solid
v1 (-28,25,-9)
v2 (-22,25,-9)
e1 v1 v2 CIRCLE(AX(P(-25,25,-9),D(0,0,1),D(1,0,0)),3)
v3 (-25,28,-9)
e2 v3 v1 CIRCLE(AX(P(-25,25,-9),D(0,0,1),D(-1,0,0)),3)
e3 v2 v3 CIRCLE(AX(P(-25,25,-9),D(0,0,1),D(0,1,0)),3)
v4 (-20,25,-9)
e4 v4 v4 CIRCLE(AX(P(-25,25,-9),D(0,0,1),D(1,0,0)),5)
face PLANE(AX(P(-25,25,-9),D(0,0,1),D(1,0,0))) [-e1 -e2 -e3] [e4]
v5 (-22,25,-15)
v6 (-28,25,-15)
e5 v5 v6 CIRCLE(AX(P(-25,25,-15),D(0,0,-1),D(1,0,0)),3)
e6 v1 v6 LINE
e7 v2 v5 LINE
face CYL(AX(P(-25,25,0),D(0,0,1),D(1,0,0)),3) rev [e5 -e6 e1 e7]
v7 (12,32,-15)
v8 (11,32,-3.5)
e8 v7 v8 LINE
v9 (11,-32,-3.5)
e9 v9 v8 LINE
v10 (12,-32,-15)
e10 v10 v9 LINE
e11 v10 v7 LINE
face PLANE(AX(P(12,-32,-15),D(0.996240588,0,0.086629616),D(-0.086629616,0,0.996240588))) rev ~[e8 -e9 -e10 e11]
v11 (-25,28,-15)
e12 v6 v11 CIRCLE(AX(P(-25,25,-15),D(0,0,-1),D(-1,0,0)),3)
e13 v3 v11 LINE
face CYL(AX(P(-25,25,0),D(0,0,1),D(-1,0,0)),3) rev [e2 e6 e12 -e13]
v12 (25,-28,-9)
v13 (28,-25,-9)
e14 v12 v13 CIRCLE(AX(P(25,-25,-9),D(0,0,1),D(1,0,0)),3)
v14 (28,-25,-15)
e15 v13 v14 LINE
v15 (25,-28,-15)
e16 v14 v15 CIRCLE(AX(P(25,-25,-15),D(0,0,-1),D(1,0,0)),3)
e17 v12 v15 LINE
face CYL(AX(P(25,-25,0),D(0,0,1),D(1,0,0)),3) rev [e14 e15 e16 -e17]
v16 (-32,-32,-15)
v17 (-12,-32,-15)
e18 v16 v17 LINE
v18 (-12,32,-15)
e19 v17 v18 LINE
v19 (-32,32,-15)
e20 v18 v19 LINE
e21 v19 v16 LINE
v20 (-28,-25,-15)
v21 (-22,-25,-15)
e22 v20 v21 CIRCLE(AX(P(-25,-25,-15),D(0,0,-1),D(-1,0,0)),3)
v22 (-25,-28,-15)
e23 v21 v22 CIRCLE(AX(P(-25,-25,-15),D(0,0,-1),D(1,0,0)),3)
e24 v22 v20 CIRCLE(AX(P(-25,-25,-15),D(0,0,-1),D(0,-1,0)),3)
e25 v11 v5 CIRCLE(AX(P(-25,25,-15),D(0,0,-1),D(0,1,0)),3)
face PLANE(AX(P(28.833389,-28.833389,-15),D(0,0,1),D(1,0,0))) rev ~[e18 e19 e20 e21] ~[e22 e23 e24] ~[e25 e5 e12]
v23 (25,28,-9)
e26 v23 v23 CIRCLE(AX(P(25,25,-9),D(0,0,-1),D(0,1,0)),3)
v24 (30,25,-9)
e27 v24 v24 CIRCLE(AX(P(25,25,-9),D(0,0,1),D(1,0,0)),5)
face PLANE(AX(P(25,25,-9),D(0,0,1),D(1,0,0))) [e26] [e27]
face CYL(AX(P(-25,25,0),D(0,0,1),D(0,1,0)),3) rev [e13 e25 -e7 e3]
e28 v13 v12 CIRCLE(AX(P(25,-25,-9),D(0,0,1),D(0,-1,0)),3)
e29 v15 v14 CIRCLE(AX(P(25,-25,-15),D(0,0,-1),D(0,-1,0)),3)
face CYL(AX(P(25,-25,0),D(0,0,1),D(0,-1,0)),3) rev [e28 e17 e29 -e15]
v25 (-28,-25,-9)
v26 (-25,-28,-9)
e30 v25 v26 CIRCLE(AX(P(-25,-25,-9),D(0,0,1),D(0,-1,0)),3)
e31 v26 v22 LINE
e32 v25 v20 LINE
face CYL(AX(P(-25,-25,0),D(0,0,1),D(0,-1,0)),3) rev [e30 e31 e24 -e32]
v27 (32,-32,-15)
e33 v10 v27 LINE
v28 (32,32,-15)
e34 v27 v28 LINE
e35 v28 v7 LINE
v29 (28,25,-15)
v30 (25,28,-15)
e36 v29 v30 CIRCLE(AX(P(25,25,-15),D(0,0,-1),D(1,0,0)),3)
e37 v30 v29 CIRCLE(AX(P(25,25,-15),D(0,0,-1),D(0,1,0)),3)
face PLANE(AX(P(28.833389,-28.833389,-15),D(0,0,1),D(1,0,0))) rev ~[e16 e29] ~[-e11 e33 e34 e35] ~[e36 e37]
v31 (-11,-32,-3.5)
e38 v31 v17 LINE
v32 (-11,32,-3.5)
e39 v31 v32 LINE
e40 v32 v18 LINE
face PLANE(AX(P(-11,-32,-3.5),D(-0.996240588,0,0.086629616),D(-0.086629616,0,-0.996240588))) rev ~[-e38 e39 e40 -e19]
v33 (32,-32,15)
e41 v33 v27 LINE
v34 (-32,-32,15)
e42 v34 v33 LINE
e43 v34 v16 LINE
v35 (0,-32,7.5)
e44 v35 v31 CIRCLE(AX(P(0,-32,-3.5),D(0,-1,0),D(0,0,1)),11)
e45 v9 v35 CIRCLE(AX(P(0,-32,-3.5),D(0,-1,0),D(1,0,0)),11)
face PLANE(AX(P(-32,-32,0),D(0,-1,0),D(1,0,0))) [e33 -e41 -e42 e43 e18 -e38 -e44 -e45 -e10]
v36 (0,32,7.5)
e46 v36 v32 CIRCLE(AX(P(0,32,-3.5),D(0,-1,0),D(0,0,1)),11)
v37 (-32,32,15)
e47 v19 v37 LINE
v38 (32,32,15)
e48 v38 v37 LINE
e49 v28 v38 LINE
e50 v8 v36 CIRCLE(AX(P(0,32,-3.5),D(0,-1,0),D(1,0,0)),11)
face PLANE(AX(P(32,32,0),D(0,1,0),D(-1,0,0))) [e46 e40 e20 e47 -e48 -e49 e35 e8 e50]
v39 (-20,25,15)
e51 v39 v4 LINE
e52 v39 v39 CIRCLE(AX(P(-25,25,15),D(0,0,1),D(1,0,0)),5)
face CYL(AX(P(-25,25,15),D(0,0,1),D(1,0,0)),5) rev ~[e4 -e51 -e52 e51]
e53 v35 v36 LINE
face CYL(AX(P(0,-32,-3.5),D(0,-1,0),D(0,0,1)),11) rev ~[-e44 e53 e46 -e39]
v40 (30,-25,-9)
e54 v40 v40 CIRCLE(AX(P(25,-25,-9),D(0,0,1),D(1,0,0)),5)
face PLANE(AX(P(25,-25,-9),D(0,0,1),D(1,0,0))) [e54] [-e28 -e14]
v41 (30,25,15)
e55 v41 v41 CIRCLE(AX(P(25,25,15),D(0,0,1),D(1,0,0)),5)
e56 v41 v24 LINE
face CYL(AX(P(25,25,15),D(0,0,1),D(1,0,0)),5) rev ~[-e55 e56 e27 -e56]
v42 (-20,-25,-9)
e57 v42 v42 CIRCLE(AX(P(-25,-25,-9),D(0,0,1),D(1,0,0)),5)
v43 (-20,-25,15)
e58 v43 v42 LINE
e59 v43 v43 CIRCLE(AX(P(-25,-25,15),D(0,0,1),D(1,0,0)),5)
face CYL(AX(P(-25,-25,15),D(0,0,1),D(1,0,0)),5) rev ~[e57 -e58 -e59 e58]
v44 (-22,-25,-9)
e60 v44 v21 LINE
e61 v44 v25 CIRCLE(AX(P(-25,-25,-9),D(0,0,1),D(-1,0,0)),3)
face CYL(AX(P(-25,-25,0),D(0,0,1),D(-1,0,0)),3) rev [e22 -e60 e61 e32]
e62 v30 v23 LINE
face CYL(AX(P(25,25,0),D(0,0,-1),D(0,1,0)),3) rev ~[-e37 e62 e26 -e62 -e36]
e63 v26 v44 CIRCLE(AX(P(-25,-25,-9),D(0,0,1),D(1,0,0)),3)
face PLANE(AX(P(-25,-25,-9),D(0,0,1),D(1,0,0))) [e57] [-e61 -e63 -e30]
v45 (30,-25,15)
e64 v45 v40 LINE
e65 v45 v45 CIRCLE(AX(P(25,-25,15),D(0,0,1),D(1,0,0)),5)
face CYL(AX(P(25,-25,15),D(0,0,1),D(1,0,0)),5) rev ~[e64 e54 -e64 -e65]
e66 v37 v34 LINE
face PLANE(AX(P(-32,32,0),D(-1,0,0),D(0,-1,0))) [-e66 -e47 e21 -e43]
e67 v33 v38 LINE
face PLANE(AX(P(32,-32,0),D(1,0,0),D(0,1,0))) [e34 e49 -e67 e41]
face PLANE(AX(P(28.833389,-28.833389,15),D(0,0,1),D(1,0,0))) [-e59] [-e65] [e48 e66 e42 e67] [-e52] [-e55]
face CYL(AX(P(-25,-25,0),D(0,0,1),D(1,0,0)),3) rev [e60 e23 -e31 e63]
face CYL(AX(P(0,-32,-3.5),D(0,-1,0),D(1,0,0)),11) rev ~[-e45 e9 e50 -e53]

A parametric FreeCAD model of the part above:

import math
import FreeCAD as App
import Part
import Sketcher
from FreeCAD import Vector

doc = App.newDocument("Part")
params = doc.addObject("Spreadsheet::Sheet", "Params")
for row, (alias, value) in enumerate([
    ("sketch1_radius", "3 mm"),
    ("sketch1_width", "64 mm"),
    ("pad1_length", "30 mm"),
    ("sketch2_radius", "11 mm"),
    ("sketch2_width", "24 mm"),
    ("pocket1_length", "64 mm"),
    ("sketch3_diameter", "10 mm"),
    ("pocket2_length", "24 mm"),
], start=1):
    params.set(f"A{row}", alias)
    params.set(f"B{row}", "=" + value)
    params.setAlias(f"B{row}", alias)

body = doc.addObject("PartDesign::Body", "Body")

sketch1 = doc.addObject("Sketcher::SketchObject", "Sketch")
body.addObject(sketch1)
sketch1.AttachmentSupport = (doc.XY_Plane, [""])
sketch1.MapMode = "FlatFace"
sketch1.addGeometry([
    Part.LineSegment(Vector(32, -32, 0), Vector(32, 32, 0)),
    Part.LineSegment(Vector(32, 32, 0), Vector(-32, 32, 0)),
    Part.LineSegment(Vector(-32, 32, 0), Vector(-32, -32, 0)),
    Part.LineSegment(Vector(-32, -32, 0), Vector(32, -32, 0)),
    Part.ArcOfCircle(Part.Circle(Vector(25, -25, 0), Vector(0, 0, 1), 3), math.radians(-90), math.radians(0)),
    Part.ArcOfCircle(Part.Circle(Vector(25, -25, 0), Vector(0, 0, 1), 3), math.radians(0), math.radians(270)),
    Part.ArcOfCircle(Part.Circle(Vector(-25, -25, 0), Vector(0, 0, 1), 3), math.radians(-90), math.radians(0)),
    Part.ArcOfCircle(Part.Circle(Vector(-25, -25, 0), Vector(0, 0, 1), 3), math.radians(180), math.radians(270)),
    Part.ArcOfCircle(Part.Circle(Vector(-25, -25, 0), Vector(0, 0, 1), 3), math.radians(0), math.radians(180)),
    Part.ArcOfCircle(Part.Circle(Vector(-25, 25, 0), Vector(0, 0, 1), 3), math.radians(180), math.radians(360)),
    Part.ArcOfCircle(Part.Circle(Vector(-25, 25, 0), Vector(0, 0, 1), 3), math.radians(90), math.radians(180)),
    Part.ArcOfCircle(Part.Circle(Vector(-25, 25, 0), Vector(0, 0, 1), 3), math.radians(0), math.radians(90)),
    Part.ArcOfCircle(Part.Circle(Vector(25, 25, 0), Vector(0, 0, 1), 3), math.radians(90), math.radians(360)),
    Part.ArcOfCircle(Part.Circle(Vector(25, 25, 0), Vector(0, 0, 1), 3), math.radians(0), math.radians(90)),
], False)
sketch1.addConstraint([
    Sketcher.Constraint("Coincident", 0, 2, 1, 1),
    Sketcher.Constraint("Coincident", 1, 2, 2, 1),
    Sketcher.Constraint("Coincident", 2, 2, 3, 1),
    Sketcher.Constraint("Coincident", 3, 2, 0, 1),
    Sketcher.Constraint("Tangent", 4, 1, 5, 2),
    Sketcher.Constraint("Coincident", 5, 1, 4, 2),
    Sketcher.Constraint("Tangent", 6, 1, 7, 2),
    Sketcher.Constraint("Tangent", 7, 1, 8, 2),
    Sketcher.Constraint("Tangent", 8, 1, 6, 2),
    Sketcher.Constraint("Tangent", 9, 1, 10, 2),
    Sketcher.Constraint("Tangent", 10, 1, 11, 2),
    Sketcher.Constraint("Tangent", 11, 1, 9, 2),
    Sketcher.Constraint("Tangent", 12, 1, 13, 2),
    Sketcher.Constraint("Coincident", 13, 1, 12, 2),
    Sketcher.Constraint("Vertical", 0),
    Sketcher.Constraint("Horizontal", 1),
    Sketcher.Constraint("Vertical", 2),
    Sketcher.Constraint("Horizontal", 3),
    Sketcher.Constraint("Equal", 5, 6),
    Sketcher.Constraint("Equal", 8, 9),
    Sketcher.Constraint("Equal", 11, 12),
    Sketcher.Constraint("Symmetric", 4, 3, 9, 3, -1, 1),
    Sketcher.Constraint("Symmetric", 6, 3, 12, 3, -1, 1),
    Sketcher.Constraint("Symmetric", 0, 2, 2, 2, -1, 1),
    Sketcher.Constraint("Symmetric", 4, 3, 6, 3, -2),
    Sketcher.Constraint("Horizontal", 8, 3, 5, 1),
    Sketcher.Constraint("Horizontal", 5, 1, 7, 1),
    Sketcher.Constraint("Horizontal", 7, 1, 8, 1),
    Sketcher.Constraint("Horizontal", 13, 3, 9, 1),
    Sketcher.Constraint("Horizontal", 9, 1, 11, 1),
    Sketcher.Constraint("Horizontal", 11, 1, 13, 1),
    Sketcher.Constraint("Vertical", 13, 3, 4, 1),
    Sketcher.Constraint("Vertical", 11, 3, 6, 1),
    Sketcher.Constraint("Vertical", 6, 1, 10, 1),
    Sketcher.Constraint("Vertical", 4, 1, 12, 1),
    Sketcher.Constraint("Equal", 3, 0),
    Sketcher.Constraint("Radius", 4, 3.0),
    Sketcher.Constraint("DistanceX", 1, 2, 1, 1, 64.0),
    Sketcher.Constraint("DistanceX", -1, 1, 4, 3, 25.0),
    Sketcher.Constraint("DistanceY", 4, 3, -1, 1, 25.0),
])
sketch1.setExpression("Constraints[36]", "Params.sketch1_radius")
sketch1.setExpression("Constraints[37]", "Params.sketch1_width")
pad1 = doc.addObject("PartDesign::Pad", "Pad")
body.addObject(pad1)
pad1.Profile = sketch1
pad1.setExpression("Length", "Params.pad1_length")
pad1.Midplane = True

sketch2 = doc.addObject("Sketcher::SketchObject", "Sketch001")
body.addObject(sketch2)
sketch2.AttachmentSupport = (doc.XZ_Plane, [""])
sketch2.MapMode = "FlatFace"
sketch2.AttachmentOffset = App.Placement(Vector(0, 0, 32), App.Rotation())
sketch2.addGeometry([
    Part.LineSegment(Vector(-11, -4, 0), Vector(-12, -15, 0)),
    Part.LineSegment(Vector(-12, -15, 0), Vector(12, -15, 0)),
    Part.LineSegment(Vector(12, -15, 0), Vector(11, -4, 0)),
    Part.ArcOfCircle(Part.Circle(Vector(0, -4, 0), Vector(0, 0, 1), 11), math.radians(0), math.radians(90)),
    Part.ArcOfCircle(Part.Circle(Vector(0, -4, 0), Vector(0, 0, 1), 11), math.radians(90), math.radians(180)),
], False)
sketch2.addConstraint([
    Sketcher.Constraint("Coincident", 0, 2, 1, 1),
    Sketcher.Constraint("Coincident", 1, 2, 2, 1),
    Sketcher.Constraint("Coincident", 2, 2, 3, 1),
    Sketcher.Constraint("Tangent", 3, 2, 4, 1),
    Sketcher.Constraint("Coincident", 4, 2, 0, 1),
    Sketcher.Constraint("Horizontal", 1),
    Sketcher.Constraint("Equal", 3, 4),
    Sketcher.Constraint("Symmetric", 2, 2, 4, 2, -2),
    Sketcher.Constraint("PointOnObject", 3, 2, -2),
    Sketcher.Constraint("Horizontal", 4, 3, 2, 2),
    Sketcher.Constraint("Equal", 0, 2),
    Sketcher.Constraint("Radius", 3, 11.0),
    Sketcher.Constraint("DistanceX", 1, 1, 1, 2, 24.0),
    Sketcher.Constraint("DistanceY", 0, 2, -1, 1, 15.0),
    Sketcher.Constraint("DistanceY", 3, 3, -1, 1, 3.5),
])
sketch2.setExpression("Constraints[11]", "Params.sketch2_radius")
sketch2.setExpression("Constraints[12]", "Params.sketch2_width")
pocket1 = doc.addObject("PartDesign::Pocket", "Pocket")
body.addObject(pocket1)
pocket1.Profile = sketch2
pocket1.setExpression("Length", "Params.pocket1_length")

sketch3 = doc.addObject("Sketcher::SketchObject", "Sketch002")
body.addObject(sketch3)
sketch3.AttachmentSupport = (doc.XY_Plane, [""])
sketch3.MapMode = "FlatFace"
sketch3.AttachmentOffset = App.Placement(Vector(0, 0, 15), App.Rotation())
sketch3.addGeometry([
    Part.Circle(Vector(-25, -25, 0), Vector(0, 0, 1), 5),
    Part.Circle(Vector(-25, 25, 0), Vector(0, 0, 1), 5),
    Part.Circle(Vector(25, 25, 0), Vector(0, 0, 1), 5),
    Part.Circle(Vector(25, -25, 0), Vector(0, 0, 1), 5),
], False)
sketch3.addConstraint([
    Sketcher.Constraint("Equal", 0, 1),
    Sketcher.Constraint("Equal", 1, 2),
    Sketcher.Constraint("Equal", 2, 3),
    Sketcher.Constraint("Symmetric", 0, 3, 2, 3, -1, 1),
    Sketcher.Constraint("Symmetric", 1, 3, 3, 3, -1, 1),
    Sketcher.Constraint("Symmetric", 1, 3, 2, 3, -2),
    Sketcher.Constraint("Diameter", 0, 10.0),
    Sketcher.Constraint("DistanceX", 0, 3, -1, 1, 25.0),
    Sketcher.Constraint("DistanceY", 0, 3, -1, 1, 25.0),
])
sketch3.setExpression("Constraints[6]", "Params.sketch3_diameter")
pocket2 = doc.addObject("PartDesign::Pocket", "Pocket001")
body.addObject(pocket2)
pocket2.Profile = sketch3
pocket2.setExpression("Length", "Params.pocket2_length")

doc.recompute()
